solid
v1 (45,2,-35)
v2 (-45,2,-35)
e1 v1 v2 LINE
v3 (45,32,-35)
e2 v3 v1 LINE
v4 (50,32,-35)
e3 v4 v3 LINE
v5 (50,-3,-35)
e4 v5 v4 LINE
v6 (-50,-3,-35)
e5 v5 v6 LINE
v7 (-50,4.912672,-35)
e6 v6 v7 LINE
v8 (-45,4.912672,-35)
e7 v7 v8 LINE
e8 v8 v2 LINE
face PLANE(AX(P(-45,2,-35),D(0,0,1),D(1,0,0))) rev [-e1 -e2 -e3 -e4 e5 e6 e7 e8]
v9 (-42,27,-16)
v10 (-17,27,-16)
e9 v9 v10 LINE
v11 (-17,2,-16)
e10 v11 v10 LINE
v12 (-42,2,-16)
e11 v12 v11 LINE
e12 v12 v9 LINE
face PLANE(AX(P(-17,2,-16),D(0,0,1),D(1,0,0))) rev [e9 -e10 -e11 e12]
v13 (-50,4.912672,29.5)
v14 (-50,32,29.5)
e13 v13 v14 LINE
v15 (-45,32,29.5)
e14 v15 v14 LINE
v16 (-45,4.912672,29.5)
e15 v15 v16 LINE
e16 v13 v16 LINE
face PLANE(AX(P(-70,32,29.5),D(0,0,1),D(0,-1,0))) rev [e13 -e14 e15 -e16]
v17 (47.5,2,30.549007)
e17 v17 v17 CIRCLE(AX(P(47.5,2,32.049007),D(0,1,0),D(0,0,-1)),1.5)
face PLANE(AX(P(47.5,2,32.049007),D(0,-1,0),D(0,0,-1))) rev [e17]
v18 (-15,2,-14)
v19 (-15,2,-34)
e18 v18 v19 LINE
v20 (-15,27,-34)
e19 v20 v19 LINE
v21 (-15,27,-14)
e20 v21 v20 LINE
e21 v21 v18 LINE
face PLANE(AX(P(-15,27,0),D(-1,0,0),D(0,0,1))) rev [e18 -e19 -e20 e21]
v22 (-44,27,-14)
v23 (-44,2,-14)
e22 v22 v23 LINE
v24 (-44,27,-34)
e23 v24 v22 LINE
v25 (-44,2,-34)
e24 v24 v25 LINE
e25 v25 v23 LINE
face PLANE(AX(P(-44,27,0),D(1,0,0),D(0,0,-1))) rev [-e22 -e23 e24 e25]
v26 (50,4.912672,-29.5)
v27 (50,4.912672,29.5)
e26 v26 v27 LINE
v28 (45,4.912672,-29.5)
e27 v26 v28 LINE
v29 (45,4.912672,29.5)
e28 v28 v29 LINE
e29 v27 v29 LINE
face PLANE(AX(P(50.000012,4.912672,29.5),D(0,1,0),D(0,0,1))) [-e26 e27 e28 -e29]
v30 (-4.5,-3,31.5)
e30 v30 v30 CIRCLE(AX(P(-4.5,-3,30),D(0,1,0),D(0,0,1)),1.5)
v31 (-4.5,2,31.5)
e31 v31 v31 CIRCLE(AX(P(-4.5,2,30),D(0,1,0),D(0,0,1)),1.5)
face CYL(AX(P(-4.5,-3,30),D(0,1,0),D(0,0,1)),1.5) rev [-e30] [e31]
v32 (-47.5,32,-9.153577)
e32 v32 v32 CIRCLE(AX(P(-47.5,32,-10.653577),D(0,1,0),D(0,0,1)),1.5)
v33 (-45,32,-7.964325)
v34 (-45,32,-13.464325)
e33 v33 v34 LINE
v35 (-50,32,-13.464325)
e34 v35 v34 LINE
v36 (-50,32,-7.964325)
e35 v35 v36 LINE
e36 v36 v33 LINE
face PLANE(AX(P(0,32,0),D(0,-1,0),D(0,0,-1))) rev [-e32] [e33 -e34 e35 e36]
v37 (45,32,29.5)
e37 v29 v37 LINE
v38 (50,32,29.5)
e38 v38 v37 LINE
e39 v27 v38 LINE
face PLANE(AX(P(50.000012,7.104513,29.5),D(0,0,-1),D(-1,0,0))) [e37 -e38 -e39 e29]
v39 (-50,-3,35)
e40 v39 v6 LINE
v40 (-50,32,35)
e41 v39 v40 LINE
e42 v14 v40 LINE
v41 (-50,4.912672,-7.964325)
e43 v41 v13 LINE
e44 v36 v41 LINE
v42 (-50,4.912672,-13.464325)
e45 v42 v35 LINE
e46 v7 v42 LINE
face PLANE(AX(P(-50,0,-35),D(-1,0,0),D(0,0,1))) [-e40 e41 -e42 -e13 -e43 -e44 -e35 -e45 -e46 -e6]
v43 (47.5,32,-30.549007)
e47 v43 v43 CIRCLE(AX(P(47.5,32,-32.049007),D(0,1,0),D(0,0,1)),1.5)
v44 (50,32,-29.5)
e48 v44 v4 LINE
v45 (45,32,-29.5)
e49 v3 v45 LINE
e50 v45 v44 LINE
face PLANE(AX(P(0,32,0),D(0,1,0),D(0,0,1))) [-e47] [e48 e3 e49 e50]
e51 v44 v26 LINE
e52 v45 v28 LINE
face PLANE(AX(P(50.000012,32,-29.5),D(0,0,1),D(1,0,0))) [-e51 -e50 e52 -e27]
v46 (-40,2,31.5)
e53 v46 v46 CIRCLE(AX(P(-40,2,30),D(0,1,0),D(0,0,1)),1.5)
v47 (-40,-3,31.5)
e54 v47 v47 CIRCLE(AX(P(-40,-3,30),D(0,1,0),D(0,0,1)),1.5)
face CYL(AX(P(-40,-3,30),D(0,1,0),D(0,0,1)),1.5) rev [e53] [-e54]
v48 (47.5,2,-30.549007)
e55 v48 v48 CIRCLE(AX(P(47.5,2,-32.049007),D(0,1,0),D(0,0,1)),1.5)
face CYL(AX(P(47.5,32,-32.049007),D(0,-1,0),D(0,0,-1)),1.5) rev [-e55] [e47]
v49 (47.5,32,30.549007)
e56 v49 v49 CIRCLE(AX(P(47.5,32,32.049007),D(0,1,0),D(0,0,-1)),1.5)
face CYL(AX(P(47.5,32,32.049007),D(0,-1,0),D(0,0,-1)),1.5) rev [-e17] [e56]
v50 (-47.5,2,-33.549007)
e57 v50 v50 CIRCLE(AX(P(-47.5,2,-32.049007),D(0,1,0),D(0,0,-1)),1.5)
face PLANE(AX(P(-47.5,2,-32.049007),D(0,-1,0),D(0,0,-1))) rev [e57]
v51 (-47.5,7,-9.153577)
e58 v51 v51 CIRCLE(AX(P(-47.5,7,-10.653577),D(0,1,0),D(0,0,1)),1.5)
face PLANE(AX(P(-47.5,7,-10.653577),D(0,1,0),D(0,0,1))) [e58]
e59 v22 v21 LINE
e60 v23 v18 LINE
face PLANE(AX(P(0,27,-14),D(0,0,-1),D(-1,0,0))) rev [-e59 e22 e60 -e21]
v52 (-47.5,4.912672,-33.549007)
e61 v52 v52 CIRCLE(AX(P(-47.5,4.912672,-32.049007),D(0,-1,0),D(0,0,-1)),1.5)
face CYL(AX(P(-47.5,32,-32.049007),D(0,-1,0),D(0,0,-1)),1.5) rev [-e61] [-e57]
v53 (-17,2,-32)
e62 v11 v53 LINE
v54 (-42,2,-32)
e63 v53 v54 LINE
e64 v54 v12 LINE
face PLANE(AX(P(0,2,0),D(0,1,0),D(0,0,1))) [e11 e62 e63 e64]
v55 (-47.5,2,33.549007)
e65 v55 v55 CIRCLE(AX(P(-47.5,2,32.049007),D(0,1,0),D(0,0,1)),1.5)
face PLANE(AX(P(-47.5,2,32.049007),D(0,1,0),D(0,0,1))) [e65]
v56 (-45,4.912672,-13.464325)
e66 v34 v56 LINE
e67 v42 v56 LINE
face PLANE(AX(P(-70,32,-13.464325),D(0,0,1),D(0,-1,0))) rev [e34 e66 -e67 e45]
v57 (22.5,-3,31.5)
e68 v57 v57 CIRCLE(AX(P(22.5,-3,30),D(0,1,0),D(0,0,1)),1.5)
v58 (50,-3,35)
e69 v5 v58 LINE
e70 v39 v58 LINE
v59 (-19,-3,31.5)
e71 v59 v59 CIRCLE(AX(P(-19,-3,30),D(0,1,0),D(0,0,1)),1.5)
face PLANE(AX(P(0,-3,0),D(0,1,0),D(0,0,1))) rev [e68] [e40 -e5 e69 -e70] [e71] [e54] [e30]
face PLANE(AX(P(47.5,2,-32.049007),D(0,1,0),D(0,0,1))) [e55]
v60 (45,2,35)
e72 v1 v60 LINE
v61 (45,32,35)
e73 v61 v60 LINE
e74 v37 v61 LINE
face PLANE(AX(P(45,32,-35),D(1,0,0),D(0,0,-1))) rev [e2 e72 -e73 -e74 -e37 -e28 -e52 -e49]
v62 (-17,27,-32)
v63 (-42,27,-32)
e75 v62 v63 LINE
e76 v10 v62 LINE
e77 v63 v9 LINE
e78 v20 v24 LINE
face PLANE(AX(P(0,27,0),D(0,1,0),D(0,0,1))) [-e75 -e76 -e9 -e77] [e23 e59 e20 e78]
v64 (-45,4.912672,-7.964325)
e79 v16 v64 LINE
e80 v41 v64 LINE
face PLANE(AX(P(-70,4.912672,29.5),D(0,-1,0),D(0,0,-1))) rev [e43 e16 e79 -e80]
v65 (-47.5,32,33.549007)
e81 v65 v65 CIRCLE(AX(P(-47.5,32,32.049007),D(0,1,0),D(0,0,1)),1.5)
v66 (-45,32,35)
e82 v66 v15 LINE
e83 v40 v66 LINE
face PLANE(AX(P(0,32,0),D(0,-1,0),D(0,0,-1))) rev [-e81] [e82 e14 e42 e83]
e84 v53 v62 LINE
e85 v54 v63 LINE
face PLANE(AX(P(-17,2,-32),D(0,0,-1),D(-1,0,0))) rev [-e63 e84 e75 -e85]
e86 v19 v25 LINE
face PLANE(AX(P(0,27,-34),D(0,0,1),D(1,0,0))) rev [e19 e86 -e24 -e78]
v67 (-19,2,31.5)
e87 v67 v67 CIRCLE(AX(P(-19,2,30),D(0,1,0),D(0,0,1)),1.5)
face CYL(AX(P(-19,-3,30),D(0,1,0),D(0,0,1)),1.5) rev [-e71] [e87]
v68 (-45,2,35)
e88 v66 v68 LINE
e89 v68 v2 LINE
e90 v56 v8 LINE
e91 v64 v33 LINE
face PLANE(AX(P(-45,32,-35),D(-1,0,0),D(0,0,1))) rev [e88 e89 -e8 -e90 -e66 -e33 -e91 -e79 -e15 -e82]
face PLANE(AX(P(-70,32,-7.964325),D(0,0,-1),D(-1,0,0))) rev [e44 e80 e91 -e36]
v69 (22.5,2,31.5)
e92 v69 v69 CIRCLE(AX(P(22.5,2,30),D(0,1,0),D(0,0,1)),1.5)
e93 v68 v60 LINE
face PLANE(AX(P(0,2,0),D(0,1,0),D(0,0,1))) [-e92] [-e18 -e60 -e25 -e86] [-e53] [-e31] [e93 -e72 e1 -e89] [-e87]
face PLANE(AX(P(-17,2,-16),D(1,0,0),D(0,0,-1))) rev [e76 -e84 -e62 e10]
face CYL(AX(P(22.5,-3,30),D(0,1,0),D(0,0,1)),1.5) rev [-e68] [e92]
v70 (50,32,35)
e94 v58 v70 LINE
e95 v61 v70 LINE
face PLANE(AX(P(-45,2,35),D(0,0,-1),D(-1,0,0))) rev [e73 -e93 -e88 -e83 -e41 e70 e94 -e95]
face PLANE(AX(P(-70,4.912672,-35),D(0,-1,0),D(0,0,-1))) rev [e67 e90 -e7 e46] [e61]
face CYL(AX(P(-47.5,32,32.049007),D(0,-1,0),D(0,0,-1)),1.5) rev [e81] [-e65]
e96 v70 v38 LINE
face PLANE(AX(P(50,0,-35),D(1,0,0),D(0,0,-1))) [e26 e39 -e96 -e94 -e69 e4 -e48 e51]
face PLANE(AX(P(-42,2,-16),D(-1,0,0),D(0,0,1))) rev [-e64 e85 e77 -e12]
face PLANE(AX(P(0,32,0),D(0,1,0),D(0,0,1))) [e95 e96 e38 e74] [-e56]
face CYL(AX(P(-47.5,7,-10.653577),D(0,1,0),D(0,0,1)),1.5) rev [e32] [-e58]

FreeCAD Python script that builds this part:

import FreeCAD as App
import Part
import Sketcher
Q = App.Units.Quantity

doc = App.newDocument("Part")
params = doc.addObject("Spreadsheet::Sheet", "Params")
for row, (alias, value) in enumerate([
    ("sketch1_width", "90 mm"),
    ("sketch1_height", "70 mm"),
    ("pad1_length", "2 mm"),
    ("sketch2_width", "90 mm"),
    ("sketch2_height", "70 mm"),
    ("pad2_length", "5 mm"),
    ("sketch3_diameter", "3 mm"),
    ("pocket1_length", "5 mm"),
    ("sketch4_width", "5 mm"),
    ("sketch4_height", "70 mm"),
    ("pad3_length", "2 mm"),
    ("sketch5_width", "5 mm"),
    ("sketch5_height", "70 mm"),
    ("pad4_length", "30 mm"),
    ("sketch6_diameter", "3 mm"),
    ("sketch7_height", "59 mm"),
    ("pocket3_length", "111.6752 mm"),
    ("pocket3_length2", "10 mm"),
    ("sketch8_width", "29 mm"),
    ("sketch8_height", "20 mm"),
    ("pad5_length", "25 mm"),
    ("sketch9_width", "25 mm"),
    ("sketch9_height", "16 mm"),
    ("pocket4_length", "25 mm"),
    ("pocket5_length", "25 mm"),
    ("sketch11_diameter", "3 mm"),
    ("pocket6_length", "25 mm"),
    ("sketch12_width", "5 mm"),
    ("sketch12_height", "70 mm"),
    ("pad6_length", "3 mm"),
], start=1):
    params.set(f"A{row}", alias)
    params.set(f"B{row}", "=" + value)
    params.setAlias(f"B{row}", alias)

body = doc.addObject("PartDesign::Body", "Body")

# Sketch on XZ plane
sketch1 = body.newObject("Sketcher::SketchObject", "Sketch")
sketch1.AttachmentSupport = (doc.getObject("XZ_Plane"), [""])
sketch1.MapMode = "FlatFace"
sketch1.addGeometry([
    Part.LineSegment(App.Vector(-45, -35, 0), App.Vector(-45, 35, 0)),
    Part.LineSegment(App.Vector(-45, 35, 0), App.Vector(45, 35, 0)),
    Part.LineSegment(App.Vector(45, 35, 0), App.Vector(45, -35, 0)),
    Part.LineSegment(App.Vector(45, -35, 0), App.Vector(-45, -35, 0)),
], False)
sketch1.addConstraint([
    Sketcher.Constraint("Coincident", 0, 2, 1, 1),
    Sketcher.Constraint("Coincident", 1, 2, 2, 1),
    Sketcher.Constraint("Coincident", 2, 2, 3, 1),
    Sketcher.Constraint("Coincident", 3, 2, 0, 1),
    Sketcher.Constraint("Vertical", 0),
    Sketcher.Constraint("Horizontal", 1),
    Sketcher.Constraint("Vertical", 2),
    Sketcher.Constraint("Horizontal", 3),
    Sketcher.Constraint("Symmetric", 0, 2, 2, 2, -1, 1),
    Sketcher.Constraint("DistanceX", 1, 1, 1, 2, Q("90 mm")),
    Sketcher.Constraint("DistanceY", 0, 1, 0, 2, Q("70 mm")),
])
sketch1.setExpression("Constraints[9]", "Params.sketch1_width")
sketch1.setExpression("Constraints[10]", "Params.sketch1_height")
pad1 = body.newObject("PartDesign::Pad", "Pad")
pad1.Profile = sketch1
pad1.setExpression("Length", "Params.pad1_length")
pad1.Reversed = True

# Sketch on XZ plane
sketch2 = body.newObject("Sketcher::SketchObject", "Sketch001")
sketch2.AttachmentSupport = (doc.getObject("XZ_Plane"), [""])
sketch2.MapMode = "FlatFace"
sketch2.AttachmentOffset = App.Placement(App.Vector(0, 0, -2), App.Rotation())
sketch2.addGeometry([
    Part.LineSegment(App.Vector(-45, -35, 0), App.Vector(-45, 35, 0)),
    Part.LineSegment(App.Vector(-45, 35, 0), App.Vector(45, 35, 0)),
    Part.LineSegment(App.Vector(45, 35, 0), App.Vector(45, -35, 0)),
    Part.LineSegment(App.Vector(45, -35, 0), App.Vector(-45, -35, 0)),
], False)
sketch2.addConstraint([
    Sketcher.Constraint("Coincident", 0, 2, 1, 1),
    Sketcher.Constraint("Coincident", 1, 2, 2, 1),
    Sketcher.Constraint("Coincident", 2, 2, 3, 1),
    Sketcher.Constraint("Coincident", 3, 2, 0, 1),
    Sketcher.Constraint("Vertical", 0),
    Sketcher.Constraint("Horizontal", 1),
    Sketcher.Constraint("Vertical", 2),
    Sketcher.Constraint("Horizontal", 3),
    Sketcher.Constraint("Symmetric", 0, 2, 2, 2, -1, 1),
    Sketcher.Constraint("DistanceX", 1, 1, 1, 2, Q("90 mm")),
    Sketcher.Constraint("DistanceY", 0, 1, 0, 2, Q("70 mm")),
])
sketch2.setExpression("Constraints[9]", "Params.sketch2_width")
sketch2.setExpression("Constraints[10]", "Params.sketch2_height")
pad2 = body.newObject("PartDesign::Pad", "Pad001")
pad2.Profile = sketch2
pad2.setExpression("Length", "Params.pad2_length")

# Sketch on XZ plane
sketch3 = body.newObject("Sketcher::SketchObject", "Sketch002")
sketch3.AttachmentSupport = (doc.getObject("XZ_Plane"), [""])
sketch3.MapMode = "FlatFace"
sketch3.AttachmentOffset = App.Placement(App.Vector(0, 0, -2), App.Rotation())
sketch3.addGeometry([
    Part.Circle(App.Vector(-40, 30, 0), App.Vector(0, 0, 1), 1.5),
    Part.Circle(App.Vector(-19, 30, 0), App.Vector(0, 0, 1), 1.5),
    Part.Circle(App.Vector(-4.5, 30, 0), App.Vector(0, 0, 1), 1.5),
    Part.Circle(App.Vector(22.5, 30, 0), App.Vector(0, 0, 1), 1.5),
], False)
sketch3.addConstraint([
    Sketcher.Constraint("Equal", 0, 1),
    Sketcher.Constraint("Equal", 1, 2),
    Sketcher.Constraint("Equal", 2, 3),
    Sketcher.Constraint("Horizontal", 0, 3, 1, 3),
    Sketcher.Constraint("Horizontal", 1, 3, 2, 3),
    Sketcher.Constraint("Horizontal", 2, 3, 3, 3),
    Sketcher.Constraint("Diameter", 0, Q("3 mm")),
    Sketcher.Constraint("DistanceX", 0, 3, -1, 1, Q("40 mm")),
    Sketcher.Constraint("DistanceY", -1, 1, 0, 3, Q("30 mm")),
    Sketcher.Constraint("DistanceX", 1, 3, -1, 1, Q("19 mm")),
    Sketcher.Constraint("DistanceX", 2, 3, 3, 3, Q("27 mm")),
    Sketcher.Constraint("DistanceX", 2, 3, -1, 1, Q("4.5 mm")),
])
sketch3.setExpression("Constraints[6]", "Params.sketch3_diameter")
pocket1 = body.newObject("PartDesign::Pocket", "Pocket")
pocket1.Profile = sketch3
pocket1.setExpression("Length", "Params.pocket1_length")
pocket1.Reversed = True

# Sketch on XZ plane
sketch4 = body.newObject("Sketcher::SketchObject", "Sketch003")
sketch4.AttachmentSupport = (doc.getObject("XZ_Plane"), [""])
sketch4.MapMode = "FlatFace"
sketch4.AttachmentOffset = App.Placement(App.Vector(0, 0, -2), App.Rotation())
sketch4.addGeometry([
    Part.LineSegment(App.Vector(-50, -35, 0), App.Vector(-50, 35, 0)),  # 0
    Part.LineSegment(App.Vector(-50, 35, 0), App.Vector(-45, 35, 0)),  # 1
    Part.LineSegment(App.Vector(-45, 35, 0), App.Vector(-45, -35, 0)),  # 2
    Part.LineSegment(App.Vector(-45, -35, 0), App.Vector(-50, -35, 0)),  # 3
    Part.LineSegment(App.Vector(45, -35, 0), App.Vector(45, 35, 0)),  # 4
    Part.LineSegment(App.Vector(45, 35, 0), App.Vector(50, 35, 0)),  # 5
    Part.LineSegment(App.Vector(50, 35, 0), App.Vector(50, -35, 0)),  # 6
    Part.LineSegment(App.Vector(50, -35, 0), App.Vector(45, -35, 0)),  # 7
], False)
sketch4.addConstraint([
    Sketcher.Constraint("Coincident", 0, 2, 1, 1),
    Sketcher.Constraint("Coincident", 1, 2, 2, 1),
    Sketcher.Constraint("Coincident", 2, 2, 3, 1),
    Sketcher.Constraint("Coincident", 3, 2, 0, 1),
    Sketcher.Constraint("Coincident", 4, 2, 5, 1),
    Sketcher.Constraint("Coincident", 5, 2, 6, 1),
    Sketcher.Constraint("Coincident", 6, 2, 7, 1),
    Sketcher.Constraint("Coincident", 7, 2, 4, 1),
    Sketcher.Constraint("Vertical", 0),
    Sketcher.Constraint("Horizontal", 1),
    Sketcher.Constraint("Vertical", 2),
    Sketcher.Constraint("Horizontal", 3),
    Sketcher.Constraint("Vertical", 4),
    Sketcher.Constraint("Horizontal", 5),
    Sketcher.Constraint("Vertical", 6),
    Sketcher.Constraint("Horizontal", 7),
    Sketcher.Constraint("Symmetric", 2, 2, 4, 2, -1, 1),
    Sketcher.Constraint("Symmetric", 0, 2, 6, 2, -1, 1),
    Sketcher.Constraint("Horizontal", 1, 2, 4, 2),
    Sketcher.Constraint("DistanceX", 1, 1, 1, 2, Q("5 mm")),
    Sketcher.Constraint("DistanceY", 0, 1, 0, 2, Q("70 mm")),
    Sketcher.Constraint("DistanceX", 0, 2, -1, 1, Q("50 mm")),
])
sketch4.setExpression("Constraints[19]", "Params.sketch4_width")
sketch4.setExpression("Constraints[20]", "Params.sketch4_height")
pad3 = body.newObject("PartDesign::Pad", "Pad002")
pad3.Profile = sketch4
pad3.setExpression("Length", "Params.pad3_length")

# Sketch on XZ plane
sketch5 = body.newObject("Sketcher::SketchObject", "Sketch004")
sketch5.AttachmentSupport = (doc.getObject("XZ_Plane"), [""])
sketch5.MapMode = "FlatFace"
sketch5.AttachmentOffset = App.Placement(App.Vector(0, 0, -2), App.Rotation())
sketch5.addGeometry([
    Part.LineSegment(App.Vector(-50, -35, 0), App.Vector(-50, 35, 0)),  # 0
    Part.LineSegment(App.Vector(-50, 35, 0), App.Vector(-45, 35, 0)),  # 1
    Part.LineSegment(App.Vector(-45, 35, 0), App.Vector(-45, -35, 0)),  # 2
    Part.LineSegment(App.Vector(-45, -35, 0), App.Vector(-50, -35, 0)),  # 3
    Part.LineSegment(App.Vector(45, -35, 0), App.Vector(45, 35, 0)),  # 4
    Part.LineSegment(App.Vector(45, 35, 0), App.Vector(50, 35, 0)),  # 5
    Part.LineSegment(App.Vector(50, 35, 0), App.Vector(50, -35, 0)),  # 6
    Part.LineSegment(App.Vector(50, -35, 0), App.Vector(45, -35, 0)),  # 7
], False)
sketch5.addConstraint([
    Sketcher.Constraint("Coincident", 0, 2, 1, 1),
    Sketcher.Constraint("Coincident", 1, 2, 2, 1),
    Sketcher.Constraint("Coincident", 2, 2, 3, 1),
    Sketcher.Constraint("Coincident", 3, 2, 0, 1),
    Sketcher.Constraint("Coincident", 4, 2, 5, 1),
    Sketcher.Constraint("Coincident", 5, 2, 6, 1),
    Sketcher.Constraint("Coincident", 6, 2, 7, 1),
    Sketcher.Constraint("Coincident", 7, 2, 4, 1),
    Sketcher.Constraint("Vertical", 0),
    Sketcher.Constraint("Horizontal", 1),
    Sketcher.Constraint("Vertical", 2),
    Sketcher.Constraint("Horizontal", 3),
    Sketcher.Constraint("Vertical", 4),
    Sketcher.Constraint("Horizontal", 5),
    Sketcher.Constraint("Vertical", 6),
    Sketcher.Constraint("Horizontal", 7),
    Sketcher.Constraint("Symmetric", 2, 2, 4, 2, -1, 1),
    Sketcher.Constraint("Symmetric", 0, 2, 6, 2, -1, 1),
    Sketcher.Constraint("Horizontal", 1, 2, 4, 2),
    Sketcher.Constraint("DistanceX", 1, 1, 1, 2, Q("5 mm")),
    Sketcher.Constraint("DistanceY", 0, 1, 0, 2, Q("70 mm")),
    Sketcher.Constraint("DistanceX", 0, 2, -1, 1, Q("50 mm")),
])
sketch5.setExpression("Constraints[19]", "Params.sketch5_width")
sketch5.setExpression("Constraints[20]", "Params.sketch5_height")
pad4 = body.newObject("PartDesign::Pad", "Pad003")
pad4.Profile = sketch5
pad4.setExpression("Length", "Params.pad4_length")
pad4.Reversed = True

# Sketch on XZ plane
sketch6 = body.newObject("Sketcher::SketchObject", "Sketch005")
sketch6.AttachmentSupport = (doc.getObject("XZ_Plane"), [""])
sketch6.MapMode = "FlatFace"
sketch6.AttachmentOffset = App.Placement(App.Vector(0, 0, -2), App.Rotation())
sketch6.addGeometry([
    Part.Circle(App.Vector(-47.5, 32.049007, 0), App.Vector(0, 0, 1), 1.5),
    Part.Circle(App.Vector(-47.5, -32.049007, 0), App.Vector(0, 0, 1), 1.5),
    Part.Circle(App.Vector(47.5, -32.049007, 0), App.Vector(0, 0, 1), 1.5),
    Part.Circle(App.Vector(47.5, 32.049007, 0), App.Vector(0, 0, 1), 1.5),
], False)
sketch6.addConstraint([
    Sketcher.Constraint("Equal", 0, 1),
    Sketcher.Constraint("Equal", 1, 2),
    Sketcher.Constraint("Equal", 2, 3),
    Sketcher.Constraint("Symmetric", 0, 3, 2, 3, -1, 1),
    Sketcher.Constraint("Symmetric", 1, 3, 3, 3, -1, 1),
    Sketcher.Constraint("Symmetric", 1, 3, 2, 3, -2),
    Sketcher.Constraint("Diameter", 0, Q("3 mm")),
    Sketcher.Constraint("DistanceX", 1, 3, 2, 3, Q("95 mm")),
    Sketcher.Constraint("DistanceY", -1, 1, 0, 3, Q("32.049007 mm")),
])
sketch6.setExpression("Constraints[6]", "Params.sketch6_diameter")
pocket2 = body.newObject("PartDesign::Pocket", "Pocket001")
pocket2.Profile = sketch6
pocket2.Type = "ThroughAll"

# Sketch on YZ plane
sketch7 = body.newObject("Sketcher::SketchObject", "Sketch006")
sketch7.AttachmentSupport = (doc.getObject("YZ_Plane"), [""])
sketch7.MapMode = "FlatFace"
sketch7.AttachmentOffset = App.Placement(App.Vector(0, 0, 50), App.Rotation())
sketch7.addGeometry([
    Part.LineSegment(App.Vector(4.912672, 29.5, 0), App.Vector(4.912672, -29.5, 0)),
    Part.LineSegment(App.Vector(4.912672, -29.5, 0), App.Vector(32, -29.5, 0)),
    Part.LineSegment(App.Vector(32, -29.5, 0), App.Vector(32, 29.5, 0)),
    Part.LineSegment(App.Vector(32, 29.5, 0), App.Vector(4.912672, 29.5, 0)),
], False)
sketch7.addConstraint([
    Sketcher.Constraint("Coincident", 0, 2, 1, 1),
    Sketcher.Constraint("Coincident", 1, 2, 2, 1),
    Sketcher.Constraint("Coincident", 2, 2, 3, 1),
    Sketcher.Constraint("Coincident", 3, 2, 0, 1),
    Sketcher.Constraint("Vertical", 0),
    Sketcher.Constraint("Horizontal", 1),
    Sketcher.Constraint("Vertical", 2),
    Sketcher.Constraint("Horizontal", 3),
    Sketcher.Constraint("DistanceY", 0, 2, 0, 1, Q("59 mm")),
    Sketcher.Constraint("DistanceX", -1, 1, 1, 2, Q("32 mm")),
    Sketcher.Constraint("DistanceY", 0, 2, -1, 1, Q("29.5 mm")),
    Sketcher.Constraint("DistanceX", 1, 1, 1, 2, Q("27.087328 mm")),
])
sketch7.setExpression("Constraints[8]", "Params.sketch7_height")
pocket3 = body.newObject("PartDesign::Pocket", "Pocket002")
pocket3.Profile = sketch7
pocket3.Type = "TwoLengths"
pocket3.setExpression("Length", "Params.pocket3_length")
pocket3.setExpression("Length2", "Params.pocket3_length2")
pocket3.Reversed = True

# Sketch on XZ plane
sketch8 = body.newObject("Sketcher::SketchObject", "Sketch007")
sketch8.AttachmentSupport = (doc.getObject("XZ_Plane"), [""])
sketch8.MapMode = "FlatFace"
sketch8.AttachmentOffset = App.Placement(App.Vector(0, 0, -2), App.Rotation())
sketch8.addGeometry([
    Part.LineSegment(App.Vector(-44, -14, 0), App.Vector(-44, -34, 0)),
    Part.LineSegment(App.Vector(-44, -34, 0), App.Vector(-15, -34, 0)),
    Part.LineSegment(App.Vector(-15, -34, 0), App.Vector(-15, -14, 0)),
    Part.LineSegment(App.Vector(-15, -14, 0), App.Vector(-44, -14, 0)),
], False)
sketch8.addConstraint([
    Sketcher.Constraint("Coincident", 0, 2, 1, 1),
    Sketcher.Constraint("Coincident", 1, 2, 2, 1),
    Sketcher.Constraint("Coincident", 2, 2, 3, 1),
    Sketcher.Constraint("Coincident", 3, 2, 0, 1),
    Sketcher.Constraint("Vertical", 0),
    Sketcher.Constraint("Horizontal", 1),
    Sketcher.Constraint("Vertical", 2),
    Sketcher.Constraint("Horizontal", 3),
    Sketcher.Constraint("DistanceX", 1, 1, 1, 2, Q("29 mm")),
    Sketcher.Constraint("DistanceY", 0, 2, 0, 1, Q("20 mm")),
    Sketcher.Constraint("DistanceX", 0, 2, -1, 1, Q("44 mm")),
    Sketcher.Constraint("DistanceY", 0, 2, -1, 1, Q("34 mm")),
])
sketch8.setExpression("Constraints[8]", "Params.sketch8_width")
sketch8.setExpression("Constraints[9]", "Params.sketch8_height")
pad5 = body.newObject("PartDesign::Pad", "Pad004")
pad5.Profile = sketch8
pad5.setExpression("Length", "Params.pad5_length")
pad5.Reversed = True

# Sketch on XZ plane
sketch9 = body.newObject("Sketcher::SketchObject", "Sketch008")
sketch9.AttachmentSupport = (doc.getObject("XZ_Plane"), [""])
sketch9.MapMode = "FlatFace"
sketch9.AttachmentOffset = App.Placement(App.Vector(0, 0, -27), App.Rotation())
sketch9.addGeometry([
    Part.LineSegment(App.Vector(-17, -16, 0), App.Vector(-17, -32, 0)),
    Part.LineSegment(App.Vector(-17, -32, 0), App.Vector(-42, -32, 0)),
    Part.LineSegment(App.Vector(-42, -32, 0), App.Vector(-42, -16, 0)),
    Part.LineSegment(App.Vector(-42, -16, 0), App.Vector(-17, -16, 0)),
], False)
sketch9.addConstraint([
    Sketcher.Constraint("Coincident", 0, 2, 1, 1),
    Sketcher.Constraint("Coincident", 1, 2, 2, 1),
    Sketcher.Constraint("Coincident", 2, 2, 3, 1),
    Sketcher.Constraint("Coincident", 3, 2, 0, 1),
    Sketcher.Constraint("Vertical", 0),
    Sketcher.Constraint("Horizontal", 1),
    Sketcher.Constraint("Vertical", 2),
    Sketcher.Constraint("Horizontal", 3),
    Sketcher.Constraint("DistanceX", 1, 2, 1, 1, Q("25 mm")),
    Sketcher.Constraint("DistanceY", 0, 2, 0, 1, Q("16 mm")),
    Sketcher.Constraint("DistanceX", 0, 2, -1, 1, Q("17 mm")),
    Sketcher.Constraint("DistanceY", 0, 2, -1, 1, Q("32 mm")),
])
sketch9.setExpression("Constraints[8]", "Params.sketch9_width")
sketch9.setExpression("Constraints[9]", "Params.sketch9_height")
pocket4 = body.newObject("PartDesign::Pocket", "Pocket003")
pocket4.Profile = sketch9
pocket4.setExpression("Length", "Params.pocket4_length")
pocket4.Reversed = True

# Sketch on YZ plane
sketch10 = body.newObject("Sketcher::SketchObject", "Sketch009")
sketch10.AttachmentSupport = (doc.getObject("YZ_Plane"), [""])
sketch10.MapMode = "FlatFace"
sketch10.AttachmentOffset = App.Placement(App.Vector(0, 0, -45), App.Rotation())
sketch10.addGeometry([
    Part.LineSegment(App.Vector(32, -13.464325, 0), App.Vector(4.912672, -13.464325, 0)),  # 0
    Part.LineSegment(App.Vector(4.912672, -13.464325, 0), App.Vector(4.912672, -35, 0)),  # 1
    Part.LineSegment(App.Vector(4.912672, -35, 0), App.Vector(32, -35, 0)),  # 2
    Part.LineSegment(App.Vector(32, -35, 0), App.Vector(32, -13.464325, 0)),  # 3
    Part.LineSegment(App.Vector(32, 29.5, 0), App.Vector(4.912672, 29.5, 0)),  # 4
    Part.LineSegment(App.Vector(4.912672, 29.5, 0), App.Vector(4.912672, -7.964325, 0)),  # 5
    Part.LineSegment(App.Vector(4.912672, -7.964325, 0), App.Vector(32, -7.964325, 0)),  # 6
    Part.LineSegment(App.Vector(32, -7.964325, 0), App.Vector(32, 29.5, 0)),  # 7
], False)
sketch10.addConstraint([
    Sketcher.Constraint("Coincident", 0, 2, 1, 1),
    Sketcher.Constraint("Coincident", 1, 2, 2, 1),
    Sketcher.Constraint("Coincident", 2, 2, 3, 1),
    Sketcher.Constraint("Coincident", 3, 2, 0, 1),
    Sketcher.Constraint("Coincident", 4, 2, 5, 1),
    Sketcher.Constraint("Coincident", 5, 2, 6, 1),
    Sketcher.Constraint("Coincident", 6, 2, 7, 1),
    Sketcher.Constraint("Coincident", 7, 2, 4, 1),
    Sketcher.Constraint("Horizontal", 0),
    Sketcher.Constraint("Vertical", 1),
    Sketcher.Constraint("Horizontal", 2),
    Sketcher.Constraint("Vertical", 3),
    Sketcher.Constraint("Horizontal", 4),
    Sketcher.Constraint("Vertical", 5),
    Sketcher.Constraint("Horizontal", 6),
    Sketcher.Constraint("Vertical", 7),
    Sketcher.Constraint("Vertical", 1, 2, 4, 2),
    Sketcher.Constraint("Vertical", 3, 2, 6, 2),
    Sketcher.Constraint("DistanceY", 1, 2, -1, 1, Q("35 mm")),
    Sketcher.Constraint("DistanceX", -1, 1, 2, 2, Q("32 mm")),
    Sketcher.Constraint("DistanceY", -1, 1, 4, 2, Q("29.5 mm")),
    Sketcher.Constraint("DistanceY", 0, 2, 5, 2, Q("5.5 mm")),
    Sketcher.Constraint("DistanceX", 0, 2, 0, 1, Q("27.087328 mm")),
    Sketcher.Constraint("DistanceY", 1, 2, 1, 1, Q("21.535675 mm")),
])
pocket5 = body.newObject("PartDesign::Pocket", "Pocket004")
pocket5.Profile = sketch10
pocket5.setExpression("Length", "Params.pocket5_length")

# Sketch on XZ plane
sketch11 = body.newObject("Sketcher::SketchObject", "Sketch010")
sketch11.AttachmentSupport = (doc.getObject("XZ_Plane"), [""])
sketch11.MapMode = "FlatFace"
sketch11.AttachmentOffset = App.Placement(App.Vector(0, 0, -32), App.Rotation())
sketch11.addGeometry(Part.Circle(App.Vector(-47.5, -10.653577, 0), App.Vector(0, 0, 1), 1.5), False)
sketch11.addConstraint([
    Sketcher.Constraint("Diameter", 0, Q("3 mm")),
    Sketcher.Constraint("DistanceX", 0, 3, -1, 1, Q("47.5 mm")),
    Sketcher.Constraint("DistanceY", 0, 3, -1, 1, Q("10.653577 mm")),
])
sketch11.setExpression("Constraints[0]", "Params.sketch11_diameter")
pocket6 = body.newObject("PartDesign::Pocket", "Pocket005")
pocket6.Profile = sketch11
pocket6.setExpression("Length", "Params.pocket6_length")
pocket6.Reversed = True

# Sketch on XZ plane
sketch12 = body.newObject("Sketcher::SketchObject", "Sketch011")
sketch12.AttachmentSupport = (doc.getObject("XZ_Plane"), [""])
sketch12.MapMode = "FlatFace"
sketch12.addGeometry([
    Part.LineSegment(App.Vector(-50, 35, 0), App.Vector(-50, -35, 0)),  # 0
    Part.LineSegment(App.Vector(-50, -35, 0), App.Vector(-45, -35, 0)),  # 1
    Part.LineSegment(App.Vector(-45, -35, 0), App.Vector(-45, 35, 0)),  # 2
    Part.LineSegment(App.Vector(-45, 35, 0), App.Vector(-50, 35, 0)),  # 3
    Part.LineSegment(App.Vector(45, 35, 0), App.Vector(45, -35, 0)),  # 4
    Part.LineSegment(App.Vector(45, -35, 0), App.Vector(50, -35, 0)),  # 5
    Part.LineSegment(App.Vector(50, -35, 0), App.Vector(50, 35, 0)),  # 6
    Part.LineSegment(App.Vector(50, 35, 0), App.Vector(45, 35, 0)),  # 7
], False)
sketch12.addConstraint([
    Sketcher.Constraint("Coincident", 0, 2, 1, 1),
    Sketcher.Constraint("Coincident", 1, 2, 2, 1),
    Sketcher.Constraint("Coincident", 2, 2, 3, 1),
    Sketcher.Constraint("Coincident", 3, 2, 0, 1),
    Sketcher.Constraint("Coincident", 4, 2, 5, 1),
    Sketcher.Constraint("Coincident", 5, 2, 6, 1),
    Sketcher.Constraint("Coincident", 6, 2, 7, 1),
    Sketcher.Constraint("Coincident", 7, 2, 4, 1),
    Sketcher.Constraint("Vertical", 0),
    Sketcher.Constraint("Horizontal", 1),
    Sketcher.Constraint("Vertical", 2),
    Sketcher.Constraint("Horizontal", 3),
    Sketcher.Constraint("Vertical", 4),
    Sketcher.Constraint("Horizontal", 5),
    Sketcher.Constraint("Vertical", 6),
    Sketcher.Constraint("Horizontal", 7),
    Sketcher.Constraint("Symmetric", 2, 2, 4, 2, -1, 1),
    Sketcher.Constraint("Symmetric", 0, 2, 6, 2, -1, 1),
    Sketcher.Constraint("Horizontal", 1, 2, 4, 2),
    Sketcher.Constraint("DistanceX", 1, 1, 1, 2, Q("5 mm")),
    Sketcher.Constraint("DistanceY", 0, 2, 0, 1, Q("70 mm")),
    Sketcher.Constraint("DistanceX", 0, 2, -1, 1, Q("50 mm")),
])
sketch12.setExpression("Constraints[19]", "Params.sketch12_width")
sketch12.setExpression("Constraints[20]", "Params.sketch12_height")
pad6 = body.newObject("PartDesign::Pad", "Pad005")
pad6.Profile = sketch12
pad6.setExpression("Length", "Params.pad6_length")

doc.recompute()
